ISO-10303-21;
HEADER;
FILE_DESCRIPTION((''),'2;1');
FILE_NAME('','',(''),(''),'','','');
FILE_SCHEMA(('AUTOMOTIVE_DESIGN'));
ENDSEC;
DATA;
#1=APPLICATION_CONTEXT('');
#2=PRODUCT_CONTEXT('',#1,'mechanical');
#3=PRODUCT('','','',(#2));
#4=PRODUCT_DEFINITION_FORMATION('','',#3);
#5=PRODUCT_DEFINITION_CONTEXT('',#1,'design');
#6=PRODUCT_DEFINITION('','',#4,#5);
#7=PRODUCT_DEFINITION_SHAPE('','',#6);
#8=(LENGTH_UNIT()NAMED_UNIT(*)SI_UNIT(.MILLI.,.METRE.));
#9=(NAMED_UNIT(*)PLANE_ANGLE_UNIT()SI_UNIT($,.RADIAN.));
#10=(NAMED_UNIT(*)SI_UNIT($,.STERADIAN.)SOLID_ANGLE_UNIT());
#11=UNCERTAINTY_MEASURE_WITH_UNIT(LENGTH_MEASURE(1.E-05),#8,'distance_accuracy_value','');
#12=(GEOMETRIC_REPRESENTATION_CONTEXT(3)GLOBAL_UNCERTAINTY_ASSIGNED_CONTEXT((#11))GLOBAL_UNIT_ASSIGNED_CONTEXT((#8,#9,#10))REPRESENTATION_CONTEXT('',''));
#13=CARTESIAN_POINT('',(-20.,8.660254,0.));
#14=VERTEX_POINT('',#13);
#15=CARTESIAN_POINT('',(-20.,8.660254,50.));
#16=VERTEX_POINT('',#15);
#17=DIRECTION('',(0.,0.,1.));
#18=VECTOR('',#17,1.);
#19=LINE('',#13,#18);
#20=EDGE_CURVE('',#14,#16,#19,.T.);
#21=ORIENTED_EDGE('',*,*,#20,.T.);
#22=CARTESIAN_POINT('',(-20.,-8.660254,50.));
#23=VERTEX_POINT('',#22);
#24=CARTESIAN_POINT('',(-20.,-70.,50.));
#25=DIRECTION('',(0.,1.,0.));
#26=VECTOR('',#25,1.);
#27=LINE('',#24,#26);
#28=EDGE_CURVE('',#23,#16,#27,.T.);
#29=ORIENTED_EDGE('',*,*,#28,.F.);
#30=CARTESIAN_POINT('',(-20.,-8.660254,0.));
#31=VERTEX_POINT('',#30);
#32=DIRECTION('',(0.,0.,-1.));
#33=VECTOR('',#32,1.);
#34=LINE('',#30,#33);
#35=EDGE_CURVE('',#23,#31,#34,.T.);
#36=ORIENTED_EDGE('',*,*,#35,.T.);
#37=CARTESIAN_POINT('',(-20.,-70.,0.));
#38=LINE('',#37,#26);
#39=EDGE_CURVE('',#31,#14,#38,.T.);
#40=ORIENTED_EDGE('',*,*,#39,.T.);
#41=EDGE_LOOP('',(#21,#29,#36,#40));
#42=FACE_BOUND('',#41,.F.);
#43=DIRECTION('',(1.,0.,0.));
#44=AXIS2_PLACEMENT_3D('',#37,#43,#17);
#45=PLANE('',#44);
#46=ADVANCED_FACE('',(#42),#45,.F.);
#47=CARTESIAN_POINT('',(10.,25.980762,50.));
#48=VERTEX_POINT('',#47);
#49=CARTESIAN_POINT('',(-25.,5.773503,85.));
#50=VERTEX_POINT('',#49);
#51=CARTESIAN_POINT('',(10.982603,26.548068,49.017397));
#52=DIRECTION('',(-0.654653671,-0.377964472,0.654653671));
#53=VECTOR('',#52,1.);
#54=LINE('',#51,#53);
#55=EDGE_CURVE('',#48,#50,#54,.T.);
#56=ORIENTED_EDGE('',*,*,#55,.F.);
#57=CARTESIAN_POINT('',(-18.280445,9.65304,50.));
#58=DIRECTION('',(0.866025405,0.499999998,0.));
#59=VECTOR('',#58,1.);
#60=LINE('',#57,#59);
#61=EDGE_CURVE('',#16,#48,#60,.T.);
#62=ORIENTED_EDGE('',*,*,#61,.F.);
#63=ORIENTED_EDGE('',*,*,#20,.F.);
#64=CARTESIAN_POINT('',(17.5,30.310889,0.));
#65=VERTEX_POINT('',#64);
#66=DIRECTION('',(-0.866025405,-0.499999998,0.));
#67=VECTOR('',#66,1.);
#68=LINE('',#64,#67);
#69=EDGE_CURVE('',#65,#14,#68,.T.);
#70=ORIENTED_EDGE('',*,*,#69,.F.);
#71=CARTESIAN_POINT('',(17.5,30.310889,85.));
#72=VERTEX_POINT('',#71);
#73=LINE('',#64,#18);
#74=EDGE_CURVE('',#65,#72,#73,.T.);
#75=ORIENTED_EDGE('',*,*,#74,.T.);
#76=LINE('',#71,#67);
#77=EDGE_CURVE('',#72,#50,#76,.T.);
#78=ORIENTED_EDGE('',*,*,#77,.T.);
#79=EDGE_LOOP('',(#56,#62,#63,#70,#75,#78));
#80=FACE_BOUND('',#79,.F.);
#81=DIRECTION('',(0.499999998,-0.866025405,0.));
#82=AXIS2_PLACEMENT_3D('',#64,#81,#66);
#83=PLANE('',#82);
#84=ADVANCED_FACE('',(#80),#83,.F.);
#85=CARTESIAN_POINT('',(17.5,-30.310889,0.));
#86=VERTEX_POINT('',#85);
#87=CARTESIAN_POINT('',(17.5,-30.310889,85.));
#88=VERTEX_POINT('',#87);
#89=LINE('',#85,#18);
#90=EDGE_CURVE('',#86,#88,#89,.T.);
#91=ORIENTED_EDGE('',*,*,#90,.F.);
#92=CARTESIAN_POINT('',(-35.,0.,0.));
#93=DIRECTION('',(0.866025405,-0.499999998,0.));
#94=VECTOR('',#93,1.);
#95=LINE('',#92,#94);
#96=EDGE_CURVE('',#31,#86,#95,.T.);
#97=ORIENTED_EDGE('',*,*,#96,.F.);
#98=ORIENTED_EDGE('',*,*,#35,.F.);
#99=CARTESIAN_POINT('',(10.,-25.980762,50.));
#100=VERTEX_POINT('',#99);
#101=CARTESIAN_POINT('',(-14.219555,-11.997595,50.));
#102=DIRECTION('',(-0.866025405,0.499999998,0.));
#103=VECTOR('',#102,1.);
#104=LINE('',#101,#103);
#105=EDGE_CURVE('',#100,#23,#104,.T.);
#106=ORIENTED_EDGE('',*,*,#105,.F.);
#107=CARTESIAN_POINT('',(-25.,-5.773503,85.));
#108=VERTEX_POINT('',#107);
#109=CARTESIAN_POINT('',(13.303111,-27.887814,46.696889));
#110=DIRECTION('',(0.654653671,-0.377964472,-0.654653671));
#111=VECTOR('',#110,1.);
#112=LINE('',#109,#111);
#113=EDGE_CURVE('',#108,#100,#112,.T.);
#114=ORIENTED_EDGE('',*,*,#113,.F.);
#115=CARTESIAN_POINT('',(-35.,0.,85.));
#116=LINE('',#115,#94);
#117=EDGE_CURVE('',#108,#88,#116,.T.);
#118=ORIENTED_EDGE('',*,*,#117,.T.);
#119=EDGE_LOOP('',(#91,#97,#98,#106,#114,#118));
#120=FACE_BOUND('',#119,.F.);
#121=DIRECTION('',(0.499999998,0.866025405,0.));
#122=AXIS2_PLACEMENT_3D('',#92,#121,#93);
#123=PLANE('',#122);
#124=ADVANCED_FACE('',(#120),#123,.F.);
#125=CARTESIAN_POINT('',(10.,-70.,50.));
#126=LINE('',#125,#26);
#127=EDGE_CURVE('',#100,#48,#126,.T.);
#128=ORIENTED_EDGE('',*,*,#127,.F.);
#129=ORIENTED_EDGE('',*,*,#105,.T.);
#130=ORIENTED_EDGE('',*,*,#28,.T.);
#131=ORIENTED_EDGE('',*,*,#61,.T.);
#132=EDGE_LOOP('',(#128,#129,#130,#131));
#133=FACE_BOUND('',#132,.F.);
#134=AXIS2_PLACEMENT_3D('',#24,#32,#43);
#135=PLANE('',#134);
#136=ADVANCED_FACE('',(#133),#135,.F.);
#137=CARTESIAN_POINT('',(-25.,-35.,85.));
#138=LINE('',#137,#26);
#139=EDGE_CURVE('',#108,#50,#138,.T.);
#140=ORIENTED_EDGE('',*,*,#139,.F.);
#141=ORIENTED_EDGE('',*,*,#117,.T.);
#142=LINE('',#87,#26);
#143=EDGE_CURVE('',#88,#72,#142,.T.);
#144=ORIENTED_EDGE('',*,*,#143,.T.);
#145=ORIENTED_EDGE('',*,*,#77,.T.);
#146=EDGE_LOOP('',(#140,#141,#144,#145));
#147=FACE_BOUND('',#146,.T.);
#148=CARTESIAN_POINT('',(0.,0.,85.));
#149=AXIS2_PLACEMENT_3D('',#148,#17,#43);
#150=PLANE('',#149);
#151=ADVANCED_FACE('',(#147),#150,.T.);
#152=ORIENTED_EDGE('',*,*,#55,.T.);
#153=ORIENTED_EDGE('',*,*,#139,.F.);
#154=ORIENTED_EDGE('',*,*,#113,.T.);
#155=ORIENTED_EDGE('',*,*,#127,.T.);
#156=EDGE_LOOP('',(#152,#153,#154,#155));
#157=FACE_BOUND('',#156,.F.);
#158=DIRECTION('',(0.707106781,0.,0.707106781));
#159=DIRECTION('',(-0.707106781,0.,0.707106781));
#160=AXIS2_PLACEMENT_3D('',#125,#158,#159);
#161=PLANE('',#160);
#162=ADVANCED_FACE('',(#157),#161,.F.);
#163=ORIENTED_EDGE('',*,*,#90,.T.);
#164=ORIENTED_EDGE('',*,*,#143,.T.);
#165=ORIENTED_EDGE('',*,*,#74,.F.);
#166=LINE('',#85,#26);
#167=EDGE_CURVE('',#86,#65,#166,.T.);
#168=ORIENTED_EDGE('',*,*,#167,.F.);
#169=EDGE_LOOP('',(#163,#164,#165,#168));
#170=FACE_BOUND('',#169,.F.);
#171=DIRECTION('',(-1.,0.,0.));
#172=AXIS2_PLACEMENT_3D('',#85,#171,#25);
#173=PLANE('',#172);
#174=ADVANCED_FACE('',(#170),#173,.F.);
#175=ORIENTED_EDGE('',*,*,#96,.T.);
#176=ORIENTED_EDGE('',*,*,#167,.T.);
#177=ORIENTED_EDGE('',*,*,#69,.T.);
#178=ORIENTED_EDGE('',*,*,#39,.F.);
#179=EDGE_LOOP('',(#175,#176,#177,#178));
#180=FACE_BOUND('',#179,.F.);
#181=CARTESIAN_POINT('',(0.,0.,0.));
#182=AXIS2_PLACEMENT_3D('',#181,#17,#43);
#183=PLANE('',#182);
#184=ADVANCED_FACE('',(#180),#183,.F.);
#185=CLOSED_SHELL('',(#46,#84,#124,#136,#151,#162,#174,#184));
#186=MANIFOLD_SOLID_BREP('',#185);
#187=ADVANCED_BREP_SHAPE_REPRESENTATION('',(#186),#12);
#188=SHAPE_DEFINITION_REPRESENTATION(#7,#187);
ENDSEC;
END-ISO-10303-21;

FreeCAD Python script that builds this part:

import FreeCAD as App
import Part
import Sketcher
Q = App.Units.Quantity


def add_polygon(sketch, points):
    """Adds a closed chain of lines whose ends are joined by coincident constraints."""
    first, n = sketch.GeometryCount, len(points)
    for a, b in zip(points, points[1:] + points[:1]):
        sketch.addGeometry(Part.LineSegment(App.Vector(*a, 0), App.Vector(*b, 0)), False)
    for i in range(n):
        sketch.addConstraint(Sketcher.Constraint("Coincident", first + i, 2, first + (i + 1) % n, 1))

doc = App.newDocument("Part")
params = doc.addObject("Spreadsheet::Sheet", "Params")
for row, (alias, value) in enumerate([
    ("pad1_length", "85 mm"),
    ("sketch2_width", "30 mm"),
    ("sketch2_height", "50 mm"),
    ("pocket1_length", "120 mm"),
], start=1):
    params.set(f"A{row}", alias)
    params.set(f"B{row}", "=" + value)
    params.setAlias(f"B{row}", alias)

body = doc.addObject("PartDesign::Body", "Body")

# Sketch on XY plane
sketch1 = body.newObject("Sketcher::SketchObject", "Sketch")
sketch1.AttachmentSupport = (doc.getObject("XY_Plane"), [""])
sketch1.MapMode = "FlatFace"
add_polygon(sketch1, [(18, 30), (-35, 0), (18, -30)])  # lines 0-2
sketch1.addConstraint([
    Sketcher.Constraint("Vertical", 2),
    Sketcher.Constraint("PointOnObject", 0, 2, -1),
    Sketcher.Constraint("Equal", 0, 1),
    Sketcher.Constraint("Angle", 0, Q("-150 deg")),
    Sketcher.Constraint("DistanceX", 0, 2, -1, 1, 35.0),
    Sketcher.Constraint("DistanceX", -1, 1, 1, 2, 17.5),
])
pad1 = body.newObject("PartDesign::Pad", "Pad")
pad1.Profile = sketch1
pad1.setExpression("Length", "Params.pad1_length")

# Sketch on XZ plane
sketch2 = body.newObject("Sketcher::SketchObject", "Sketch001")
sketch2.AttachmentSupport = (doc.getObject("XZ_Plane"), [""])
sketch2.MapMode = "FlatFace"
sketch2.AttachmentOffset = App.Placement(App.Vector(0, 0, 70), App.Rotation())
add_polygon(sketch2, [(-45, 0), (-20, 0), (-20, 50), (10, 50), (-25, 85), (-43, 85)])  # lines 0-5
sketch2.addConstraint([
    Sketcher.Constraint("Horizontal", 0),
    Sketcher.Constraint("Vertical", 1),
    Sketcher.Constraint("Horizontal", 2),
    Sketcher.Constraint("Horizontal", 4),
    Sketcher.Constraint("PointOnObject", 0, 2, -1),
    Sketcher.Constraint("DistanceX", 2, 1, 2, 2, 30.0),
    Sketcher.Constraint("DistanceY", 1, 1, 1, 2, 50.0),
    Sketcher.Constraint("Angle", 3, Q("135 deg")),
    Sketcher.Constraint("DistanceX", 0, 2, -1, 1, 20.0),
    Sketcher.Constraint("DistanceX", 0, 1, 0, 2, 24.77262),
    Sketcher.Constraint("DistanceX", 4, 2, 4, 1, 17.637696),
    Sketcher.Constraint("DistanceX", 3, 2, -1, 1, 25.159609),
])
sketch2.setExpression("Constraints[11]", "Params.sketch2_width")
sketch2.setExpression("Constraints[12]", "Params.sketch2_height")
pocket1 = body.newObject("PartDesign::Pocket", "Pocket")
pocket1.Profile = sketch2
pocket1.setExpression("Length", "Params.pocket1_length")

doc.recompute()
